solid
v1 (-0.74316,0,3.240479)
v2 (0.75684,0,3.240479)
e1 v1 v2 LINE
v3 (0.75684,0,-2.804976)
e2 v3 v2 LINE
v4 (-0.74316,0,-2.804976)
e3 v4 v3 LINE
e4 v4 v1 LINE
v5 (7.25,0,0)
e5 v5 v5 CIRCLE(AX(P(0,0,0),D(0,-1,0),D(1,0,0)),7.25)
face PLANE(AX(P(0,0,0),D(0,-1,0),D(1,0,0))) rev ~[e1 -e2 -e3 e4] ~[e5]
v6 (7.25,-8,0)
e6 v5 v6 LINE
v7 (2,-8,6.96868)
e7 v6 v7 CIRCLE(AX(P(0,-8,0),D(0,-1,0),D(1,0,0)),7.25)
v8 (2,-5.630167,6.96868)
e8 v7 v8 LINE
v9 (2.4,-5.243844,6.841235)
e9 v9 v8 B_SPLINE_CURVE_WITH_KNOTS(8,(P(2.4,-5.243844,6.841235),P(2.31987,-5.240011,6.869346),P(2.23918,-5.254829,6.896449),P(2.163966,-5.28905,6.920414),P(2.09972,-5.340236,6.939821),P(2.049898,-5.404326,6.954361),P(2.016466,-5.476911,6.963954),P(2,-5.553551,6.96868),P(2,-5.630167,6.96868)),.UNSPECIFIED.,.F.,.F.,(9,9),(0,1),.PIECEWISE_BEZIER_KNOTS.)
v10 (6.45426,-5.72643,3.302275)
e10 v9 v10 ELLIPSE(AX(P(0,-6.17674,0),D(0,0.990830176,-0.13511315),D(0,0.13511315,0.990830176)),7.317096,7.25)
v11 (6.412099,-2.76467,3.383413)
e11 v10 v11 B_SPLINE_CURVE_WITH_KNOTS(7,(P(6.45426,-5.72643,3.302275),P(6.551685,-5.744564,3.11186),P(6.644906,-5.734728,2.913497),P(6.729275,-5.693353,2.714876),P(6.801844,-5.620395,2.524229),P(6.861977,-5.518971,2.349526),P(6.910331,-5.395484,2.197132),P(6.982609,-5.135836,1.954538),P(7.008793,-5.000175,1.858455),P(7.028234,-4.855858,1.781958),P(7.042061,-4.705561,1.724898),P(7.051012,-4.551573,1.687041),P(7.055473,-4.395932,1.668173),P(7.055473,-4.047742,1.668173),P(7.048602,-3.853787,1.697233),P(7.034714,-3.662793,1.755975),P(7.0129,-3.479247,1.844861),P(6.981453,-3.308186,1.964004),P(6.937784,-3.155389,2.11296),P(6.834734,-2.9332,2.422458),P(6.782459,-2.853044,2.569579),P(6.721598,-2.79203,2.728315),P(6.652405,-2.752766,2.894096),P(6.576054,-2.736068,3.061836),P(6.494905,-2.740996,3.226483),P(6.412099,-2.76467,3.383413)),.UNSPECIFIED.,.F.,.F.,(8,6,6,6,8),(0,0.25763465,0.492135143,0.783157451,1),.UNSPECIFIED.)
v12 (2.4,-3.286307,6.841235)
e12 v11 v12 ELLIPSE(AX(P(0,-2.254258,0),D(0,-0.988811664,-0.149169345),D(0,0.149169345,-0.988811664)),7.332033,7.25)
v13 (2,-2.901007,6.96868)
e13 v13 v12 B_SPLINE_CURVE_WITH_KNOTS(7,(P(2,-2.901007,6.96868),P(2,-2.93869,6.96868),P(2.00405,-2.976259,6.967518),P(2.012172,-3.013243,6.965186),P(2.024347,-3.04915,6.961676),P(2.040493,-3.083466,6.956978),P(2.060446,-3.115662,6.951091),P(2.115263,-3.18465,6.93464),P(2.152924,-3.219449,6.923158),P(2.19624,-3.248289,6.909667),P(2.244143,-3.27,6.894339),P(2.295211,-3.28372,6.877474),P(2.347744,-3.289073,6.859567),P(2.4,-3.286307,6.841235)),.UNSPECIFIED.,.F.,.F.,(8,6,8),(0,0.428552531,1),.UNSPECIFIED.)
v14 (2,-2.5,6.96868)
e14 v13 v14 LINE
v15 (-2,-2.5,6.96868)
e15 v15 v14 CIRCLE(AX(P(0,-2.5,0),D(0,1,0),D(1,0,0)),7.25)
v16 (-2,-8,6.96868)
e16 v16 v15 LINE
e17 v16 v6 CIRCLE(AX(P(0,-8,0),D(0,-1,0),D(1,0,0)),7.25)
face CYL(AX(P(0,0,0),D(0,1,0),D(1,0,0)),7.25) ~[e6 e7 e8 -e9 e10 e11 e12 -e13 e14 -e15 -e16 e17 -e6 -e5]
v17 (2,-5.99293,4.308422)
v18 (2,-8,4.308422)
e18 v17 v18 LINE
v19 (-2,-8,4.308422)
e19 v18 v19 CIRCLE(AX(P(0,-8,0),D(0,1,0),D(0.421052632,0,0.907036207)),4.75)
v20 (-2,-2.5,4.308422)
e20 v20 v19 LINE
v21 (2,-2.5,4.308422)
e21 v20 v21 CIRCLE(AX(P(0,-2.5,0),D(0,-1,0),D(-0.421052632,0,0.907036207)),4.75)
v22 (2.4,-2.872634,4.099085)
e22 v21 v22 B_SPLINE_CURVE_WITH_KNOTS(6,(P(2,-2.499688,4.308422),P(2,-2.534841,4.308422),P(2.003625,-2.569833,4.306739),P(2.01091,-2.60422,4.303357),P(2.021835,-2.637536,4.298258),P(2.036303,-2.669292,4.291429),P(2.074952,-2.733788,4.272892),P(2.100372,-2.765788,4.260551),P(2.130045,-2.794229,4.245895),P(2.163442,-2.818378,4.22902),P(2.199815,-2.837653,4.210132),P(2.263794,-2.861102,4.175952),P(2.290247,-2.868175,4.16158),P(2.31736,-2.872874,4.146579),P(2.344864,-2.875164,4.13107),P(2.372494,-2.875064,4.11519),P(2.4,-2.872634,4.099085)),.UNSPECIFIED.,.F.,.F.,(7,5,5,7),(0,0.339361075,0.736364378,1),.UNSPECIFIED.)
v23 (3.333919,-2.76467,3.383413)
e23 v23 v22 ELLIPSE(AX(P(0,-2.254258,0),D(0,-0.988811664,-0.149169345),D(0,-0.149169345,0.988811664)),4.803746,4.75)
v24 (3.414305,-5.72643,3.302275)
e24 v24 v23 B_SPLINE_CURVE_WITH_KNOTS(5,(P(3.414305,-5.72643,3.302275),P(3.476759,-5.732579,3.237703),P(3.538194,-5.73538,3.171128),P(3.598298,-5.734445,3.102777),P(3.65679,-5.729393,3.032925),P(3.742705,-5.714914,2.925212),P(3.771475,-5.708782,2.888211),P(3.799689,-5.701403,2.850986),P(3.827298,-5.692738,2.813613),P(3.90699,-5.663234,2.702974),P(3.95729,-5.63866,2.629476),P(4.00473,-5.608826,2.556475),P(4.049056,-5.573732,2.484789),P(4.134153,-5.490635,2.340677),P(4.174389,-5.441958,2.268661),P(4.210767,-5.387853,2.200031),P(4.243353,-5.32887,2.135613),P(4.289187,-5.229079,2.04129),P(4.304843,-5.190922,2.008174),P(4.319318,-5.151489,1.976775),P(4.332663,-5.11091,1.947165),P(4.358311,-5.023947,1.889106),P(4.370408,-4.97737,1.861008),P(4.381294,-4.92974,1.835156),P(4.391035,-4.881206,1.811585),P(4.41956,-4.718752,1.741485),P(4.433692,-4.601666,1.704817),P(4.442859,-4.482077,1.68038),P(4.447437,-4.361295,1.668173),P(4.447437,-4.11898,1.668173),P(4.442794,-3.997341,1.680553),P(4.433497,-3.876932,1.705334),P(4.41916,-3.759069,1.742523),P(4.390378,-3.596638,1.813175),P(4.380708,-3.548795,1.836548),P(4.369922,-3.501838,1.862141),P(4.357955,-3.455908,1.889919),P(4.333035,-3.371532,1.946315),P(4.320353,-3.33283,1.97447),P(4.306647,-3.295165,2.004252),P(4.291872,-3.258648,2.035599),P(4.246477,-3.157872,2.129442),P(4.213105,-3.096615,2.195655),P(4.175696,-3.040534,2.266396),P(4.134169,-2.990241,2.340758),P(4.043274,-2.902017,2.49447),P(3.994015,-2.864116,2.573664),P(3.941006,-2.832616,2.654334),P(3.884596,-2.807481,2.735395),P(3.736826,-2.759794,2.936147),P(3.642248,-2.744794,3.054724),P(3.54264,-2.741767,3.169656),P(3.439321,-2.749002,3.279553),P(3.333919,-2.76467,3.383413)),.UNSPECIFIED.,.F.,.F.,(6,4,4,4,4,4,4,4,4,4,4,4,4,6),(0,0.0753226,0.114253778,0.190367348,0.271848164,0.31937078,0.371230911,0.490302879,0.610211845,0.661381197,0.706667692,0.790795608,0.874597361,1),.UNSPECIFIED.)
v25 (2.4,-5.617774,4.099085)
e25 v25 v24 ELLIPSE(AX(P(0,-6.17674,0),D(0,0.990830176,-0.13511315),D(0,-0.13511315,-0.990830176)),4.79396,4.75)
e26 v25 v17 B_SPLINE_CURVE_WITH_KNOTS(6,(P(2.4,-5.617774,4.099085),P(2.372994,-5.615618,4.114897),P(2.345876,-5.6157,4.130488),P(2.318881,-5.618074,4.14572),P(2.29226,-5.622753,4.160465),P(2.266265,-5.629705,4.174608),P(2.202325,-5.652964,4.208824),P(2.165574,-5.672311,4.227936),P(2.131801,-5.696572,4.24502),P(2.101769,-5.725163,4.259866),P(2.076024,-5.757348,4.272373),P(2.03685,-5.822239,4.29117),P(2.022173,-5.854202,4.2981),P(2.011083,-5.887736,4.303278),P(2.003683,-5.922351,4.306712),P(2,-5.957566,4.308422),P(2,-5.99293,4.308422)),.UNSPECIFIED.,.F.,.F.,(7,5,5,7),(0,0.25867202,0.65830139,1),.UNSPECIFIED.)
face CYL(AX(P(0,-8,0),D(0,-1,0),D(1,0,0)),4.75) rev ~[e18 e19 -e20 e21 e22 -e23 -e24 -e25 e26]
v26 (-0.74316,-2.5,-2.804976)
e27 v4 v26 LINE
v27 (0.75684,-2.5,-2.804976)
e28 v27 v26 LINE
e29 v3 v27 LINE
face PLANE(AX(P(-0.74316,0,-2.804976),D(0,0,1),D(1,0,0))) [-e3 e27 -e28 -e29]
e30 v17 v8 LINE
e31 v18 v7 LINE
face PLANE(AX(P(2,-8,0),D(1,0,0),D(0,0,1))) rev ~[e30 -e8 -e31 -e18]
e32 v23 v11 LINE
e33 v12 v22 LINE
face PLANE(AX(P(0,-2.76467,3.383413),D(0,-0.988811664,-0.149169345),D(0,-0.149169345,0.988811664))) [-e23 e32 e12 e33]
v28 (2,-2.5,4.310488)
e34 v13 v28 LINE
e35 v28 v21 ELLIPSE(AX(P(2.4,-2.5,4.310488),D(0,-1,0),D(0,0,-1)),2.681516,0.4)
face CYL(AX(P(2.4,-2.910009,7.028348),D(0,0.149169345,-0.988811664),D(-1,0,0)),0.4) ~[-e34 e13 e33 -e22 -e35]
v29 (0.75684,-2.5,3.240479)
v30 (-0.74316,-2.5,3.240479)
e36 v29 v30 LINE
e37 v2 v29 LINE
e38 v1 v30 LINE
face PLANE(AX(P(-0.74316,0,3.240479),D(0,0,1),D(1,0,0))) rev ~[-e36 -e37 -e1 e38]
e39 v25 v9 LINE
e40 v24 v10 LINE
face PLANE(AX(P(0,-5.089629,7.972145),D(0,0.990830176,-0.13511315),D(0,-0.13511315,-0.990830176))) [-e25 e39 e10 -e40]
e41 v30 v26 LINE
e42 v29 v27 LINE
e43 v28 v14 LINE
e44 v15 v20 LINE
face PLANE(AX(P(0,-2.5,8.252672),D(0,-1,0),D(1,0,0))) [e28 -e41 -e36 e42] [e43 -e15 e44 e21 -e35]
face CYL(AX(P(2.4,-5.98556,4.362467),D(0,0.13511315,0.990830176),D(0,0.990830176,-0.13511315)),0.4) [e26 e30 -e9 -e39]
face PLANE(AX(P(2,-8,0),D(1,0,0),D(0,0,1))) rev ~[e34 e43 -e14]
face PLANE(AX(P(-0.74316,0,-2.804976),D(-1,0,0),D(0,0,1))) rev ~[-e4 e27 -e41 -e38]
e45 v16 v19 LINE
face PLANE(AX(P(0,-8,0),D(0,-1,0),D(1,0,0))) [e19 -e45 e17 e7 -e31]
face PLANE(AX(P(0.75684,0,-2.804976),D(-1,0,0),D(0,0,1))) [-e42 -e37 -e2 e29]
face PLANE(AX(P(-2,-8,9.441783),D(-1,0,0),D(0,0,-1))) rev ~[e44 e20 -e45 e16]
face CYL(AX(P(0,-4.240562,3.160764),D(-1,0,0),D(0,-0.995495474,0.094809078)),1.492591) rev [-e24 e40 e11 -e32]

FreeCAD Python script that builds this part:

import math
import FreeCAD as App
import Part
import Sketcher

V = App.Vector


def edges_at(feature, points):
    """Names of the edges that pass closest to the given points."""
    edges = feature.Shape.Edges
    near = lambda p: min(range(len(edges)), key=lambda i: edges[i].distToShape(Part.Vertex(*p))[0])
    return sorted({f"Edge{near(p) + 1}" for p in points})

doc = App.newDocument("Part")
body = doc.addObject("PartDesign::Body", "Body")

# Sketch on XZ plane
sketch1 = body.newObject("Sketcher::SketchObject", "Sketch")
sketch1.AttachmentSupport = (doc.getObject("XZ_Plane"), [""])
sketch1.MapMode = "FlatFace"
sketch1.addGeometry(Part.Circle(V(0, 0, 0), V(0, 0, 1), 7), False)
sketch1.addConstraint([
    Sketcher.Constraint("Coincident", 0, 3, -1, 1),
    Sketcher.Constraint("Diameter", 0, 14.5),
])
pad1 = body.newObject("PartDesign::Pad", "Pad")
pad1.Profile = sketch1
pad1.Length = 8

# Sketch on XZ plane
sketch2 = body.newObject("Sketcher::SketchObject", "Sketch001")
sketch2.AttachmentSupport = (doc.getObject("XZ_Plane"), [""])
sketch2.MapMode = "FlatFace"
sketch2.AttachmentOffset = App.Placement(V(0, 0, 8), App.Rotation())
sketch2.addGeometry(Part.Circle(V(0, 0, 0), V(0, 0, 1), 4.8), False)
sketch2.addConstraint([
    Sketcher.Constraint("Coincident", 0, 3, -1, 1),
    Sketcher.Constraint("Diameter", 0, 9.5),
])
pocket1 = body.newObject("PartDesign::Pocket", "Pocket")
pocket1.Profile = sketch2
pocket1.Length = 5.5

# Sketch on XZ plane
sketch3 = body.newObject("Sketcher::SketchObject", "Sketch002")
sketch3.AttachmentSupport = (doc.getObject("XZ_Plane"), [""])
sketch3.MapMode = "FlatFace"
sketch3.AttachmentOffset = App.Placement(V(0, 0, 8), App.Rotation())
sketch3.addGeometry([
    Part.LineSegment(V(-2, 9.4, 0), V(-2, 0, 0)),
    Part.LineSegment(V(-2, 0, 0), V(2, 0, 0)),
    Part.LineSegment(V(2, 0, 0), V(2, 9.4, 0)),
    Part.LineSegment(V(2, 9.4, 0), V(-2, 9.4, 0)),
], False)
sketch3.addConstraint([
    Sketcher.Constraint("Coincident", 0, 2, 1, 1),
    Sketcher.Constraint("Coincident", 1, 2, 2, 1),
    Sketcher.Constraint("Coincident", 2, 2, 3, 1),
    Sketcher.Constraint("Coincident", 3, 2, 0, 1),
    Sketcher.Constraint("Vertical", 0),
    Sketcher.Constraint("Horizontal", 1),
    Sketcher.Constraint("Vertical", 2),
    Sketcher.Constraint("Horizontal", 3),
    Sketcher.Constraint("Symmetric", 0, 2, 1, 2, -1, 1),
    Sketcher.Constraint("DistanceX", 1, 1, 1, 2, 4.0),
    Sketcher.Constraint("DistanceY", 0, 2, 0, 1, 9.441783),
])
pocket2 = body.newObject("PartDesign::Pocket", "Pocket001")
pocket2.Profile = sketch3
pocket2.Length = 5.5

# Sketch on YZ plane
sketch4 = body.newObject("Sketcher::SketchObject", "Sketch003")
sketch4.AttachmentSupport = (doc.getObject("YZ_Plane"), [""])
sketch4.MapMode = "FlatFace"
sketch4.addGeometry([
    Part.LineSegment(V(-5.1, 8, 0), V(-5.7, 3.3, 0)),
    Part.ArcOfCircle(Part.Circle(V(-4.2, 3.2, 0), V(0, 0, 1), 1.5), math.radians(175), math.radians(369)),
    Part.LineSegment(V(-2.8, 3.4, 0), V(-3.5, 8, 0)),
    Part.LineSegment(V(-3.5, 8, 0), V(-5.1, 8, 0)),
], False)
sketch4.addConstraint([
    Sketcher.Constraint("Coincident", 0, 2, 1, 1),
    Sketcher.Constraint("Tangent", 1, 2, 2, 1),
    Sketcher.Constraint("Coincident", 2, 2, 3, 1),
    Sketcher.Constraint("Coincident", 3, 2, 0, 1),
    Sketcher.Constraint("Radius", 1, 1.492591),
    Sketcher.Constraint("DistanceX", 0, 2, 3, 2, 0.6368),
    Sketcher.Constraint("Distance", 0, 4.713088),
    Sketcher.Constraint("Distance", 2, 4.676432),
    Sketcher.Constraint("DistanceX", 1, 3, -1, 1, 4.240562),
    Sketcher.Constraint("DistanceX", 0, 2, -1, 1, 5.72643),
    Sketcher.Constraint("DistanceX", 1, 2, -1, 1, 2.76467),
    Sketcher.Constraint("DistanceY", -1, 1, 1, 3, 3.160764),
])
pocket3 = body.newObject("PartDesign::Pocket", "Pocket002")
pocket3.Profile = sketch4
pocket3.Type = "ThroughAll"
pocket3.Reversed = True

# Sketch on XZ plane
sketch5 = body.newObject("Sketcher::SketchObject", "Sketch004")
sketch5.AttachmentSupport = (doc.getObject("XZ_Plane"), [""])
sketch5.MapMode = "FlatFace"
sketch5.addGeometry([
    Part.LineSegment(V(-0.7, 3.2, 0), V(-0.7, -2.8, 0)),
    Part.LineSegment(V(-0.7, -2.8, 0), V(0.8, -2.8, 0)),
    Part.LineSegment(V(0.8, -2.8, 0), V(0.8, 3.2, 0)),
    Part.LineSegment(V(0.8, 3.2, 0), V(-0.7, 3.2, 0)),
], False)
sketch5.addConstraint([
    Sketcher.Constraint("Coincident", 0, 2, 1, 1),
    Sketcher.Constraint("Coincident", 1, 2, 2, 1),
    Sketcher.Constraint("Coincident", 2, 2, 3, 1),
    Sketcher.Constraint("Coincident", 3, 2, 0, 1),
    Sketcher.Constraint("Vertical", 0),
    Sketcher.Constraint("Horizontal", 1),
    Sketcher.Constraint("Vertical", 2),
    Sketcher.Constraint("Horizontal", 3),
    Sketcher.Constraint("DistanceX", 1, 1, 1, 2, 1.5),
    Sketcher.Constraint("DistanceY", 0, 2, 0, 1, 6.045455),
    Sketcher.Constraint("DistanceX", 0, 2, -1, 1, 0.74316),
    Sketcher.Constraint("DistanceY", -1, 1, 2, 2, 3.240479),
])
pocket4 = body.newObject("PartDesign::Pocket", "Pocket003")
pocket4.Profile = sketch5
pocket4.Length = 25
pocket4.Reversed = True
doc.recompute()

fillet = body.newObject("PartDesign::Fillet", "Fillet")
fillet.Base = (pocket4, edges_at(pocket4, [(2, -3.105, 5.639), (2, -5.408, 5.639)]))
fillet.Radius = 0.4

doc.recompute()
